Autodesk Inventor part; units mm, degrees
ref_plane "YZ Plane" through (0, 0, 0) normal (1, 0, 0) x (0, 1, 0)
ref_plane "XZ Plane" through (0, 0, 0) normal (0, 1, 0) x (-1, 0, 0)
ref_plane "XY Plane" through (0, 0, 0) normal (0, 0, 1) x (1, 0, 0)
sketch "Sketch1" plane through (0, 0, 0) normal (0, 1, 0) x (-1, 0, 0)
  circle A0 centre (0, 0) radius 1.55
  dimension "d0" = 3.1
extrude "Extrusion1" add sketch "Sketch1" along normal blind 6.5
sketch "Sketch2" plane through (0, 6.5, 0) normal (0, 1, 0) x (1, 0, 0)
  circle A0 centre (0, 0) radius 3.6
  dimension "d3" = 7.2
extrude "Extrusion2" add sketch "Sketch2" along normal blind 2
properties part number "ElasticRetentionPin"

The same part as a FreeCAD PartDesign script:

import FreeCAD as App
import Part
import Sketcher
from FreeCAD import Vector
Q = App.Units.Quantity

doc = App.newDocument("Part")
body = doc.addObject("PartDesign::Body", "Body")

# Sketch on XZ plane
sketch1 = doc.addObject("Sketcher::SketchObject", "Sketch")
body.addObject(sketch1)
sketch1.AttachmentSupport = (doc.XZ_Plane, [""])
sketch1.MapMode = "FlatFace"
sketch1.addGeometry(Part.Circle(Vector(0, 0, 0), Vector(0, 0, 1), 1.55), False)
sketch1.addConstraint([
    Sketcher.Constraint("Coincident", 0, 3, -1, 1),
    Sketcher.Constraint("Diameter", 0, Q("3.1 mm")),
])
pad1 = doc.addObject("PartDesign::Pad", "Pad")
body.addObject(pad1)
pad1.Profile = sketch1
pad1.Length = 6.5
pad1.Reversed = True

# Sketch on XZ plane
sketch2 = doc.addObject("Sketcher::SketchObject", "Sketch001")
body.addObject(sketch2)
sketch2.AttachmentSupport = (doc.XZ_Plane, [""])
sketch2.MapMode = "FlatFace"
sketch2.AttachmentOffset = App.Placement(Vector(0, 0, -6.5), App.Rotation())
sketch2.addGeometry(Part.Circle(Vector(0, 0, 0), Vector(0, 0, 1), 3.6), False)
sketch2.addConstraint([
    Sketcher.Constraint("Coincident", 0, 3, -1, 1),
    Sketcher.Constraint("Diameter", 0, Q("7.2 mm")),
])
pad2 = doc.addObject("PartDesign::Pad", "Pad001")
body.addObject(pad2)
pad2.Profile = sketch2
pad2.Length = 2
pad2.Reversed = True

doc.recompute()
